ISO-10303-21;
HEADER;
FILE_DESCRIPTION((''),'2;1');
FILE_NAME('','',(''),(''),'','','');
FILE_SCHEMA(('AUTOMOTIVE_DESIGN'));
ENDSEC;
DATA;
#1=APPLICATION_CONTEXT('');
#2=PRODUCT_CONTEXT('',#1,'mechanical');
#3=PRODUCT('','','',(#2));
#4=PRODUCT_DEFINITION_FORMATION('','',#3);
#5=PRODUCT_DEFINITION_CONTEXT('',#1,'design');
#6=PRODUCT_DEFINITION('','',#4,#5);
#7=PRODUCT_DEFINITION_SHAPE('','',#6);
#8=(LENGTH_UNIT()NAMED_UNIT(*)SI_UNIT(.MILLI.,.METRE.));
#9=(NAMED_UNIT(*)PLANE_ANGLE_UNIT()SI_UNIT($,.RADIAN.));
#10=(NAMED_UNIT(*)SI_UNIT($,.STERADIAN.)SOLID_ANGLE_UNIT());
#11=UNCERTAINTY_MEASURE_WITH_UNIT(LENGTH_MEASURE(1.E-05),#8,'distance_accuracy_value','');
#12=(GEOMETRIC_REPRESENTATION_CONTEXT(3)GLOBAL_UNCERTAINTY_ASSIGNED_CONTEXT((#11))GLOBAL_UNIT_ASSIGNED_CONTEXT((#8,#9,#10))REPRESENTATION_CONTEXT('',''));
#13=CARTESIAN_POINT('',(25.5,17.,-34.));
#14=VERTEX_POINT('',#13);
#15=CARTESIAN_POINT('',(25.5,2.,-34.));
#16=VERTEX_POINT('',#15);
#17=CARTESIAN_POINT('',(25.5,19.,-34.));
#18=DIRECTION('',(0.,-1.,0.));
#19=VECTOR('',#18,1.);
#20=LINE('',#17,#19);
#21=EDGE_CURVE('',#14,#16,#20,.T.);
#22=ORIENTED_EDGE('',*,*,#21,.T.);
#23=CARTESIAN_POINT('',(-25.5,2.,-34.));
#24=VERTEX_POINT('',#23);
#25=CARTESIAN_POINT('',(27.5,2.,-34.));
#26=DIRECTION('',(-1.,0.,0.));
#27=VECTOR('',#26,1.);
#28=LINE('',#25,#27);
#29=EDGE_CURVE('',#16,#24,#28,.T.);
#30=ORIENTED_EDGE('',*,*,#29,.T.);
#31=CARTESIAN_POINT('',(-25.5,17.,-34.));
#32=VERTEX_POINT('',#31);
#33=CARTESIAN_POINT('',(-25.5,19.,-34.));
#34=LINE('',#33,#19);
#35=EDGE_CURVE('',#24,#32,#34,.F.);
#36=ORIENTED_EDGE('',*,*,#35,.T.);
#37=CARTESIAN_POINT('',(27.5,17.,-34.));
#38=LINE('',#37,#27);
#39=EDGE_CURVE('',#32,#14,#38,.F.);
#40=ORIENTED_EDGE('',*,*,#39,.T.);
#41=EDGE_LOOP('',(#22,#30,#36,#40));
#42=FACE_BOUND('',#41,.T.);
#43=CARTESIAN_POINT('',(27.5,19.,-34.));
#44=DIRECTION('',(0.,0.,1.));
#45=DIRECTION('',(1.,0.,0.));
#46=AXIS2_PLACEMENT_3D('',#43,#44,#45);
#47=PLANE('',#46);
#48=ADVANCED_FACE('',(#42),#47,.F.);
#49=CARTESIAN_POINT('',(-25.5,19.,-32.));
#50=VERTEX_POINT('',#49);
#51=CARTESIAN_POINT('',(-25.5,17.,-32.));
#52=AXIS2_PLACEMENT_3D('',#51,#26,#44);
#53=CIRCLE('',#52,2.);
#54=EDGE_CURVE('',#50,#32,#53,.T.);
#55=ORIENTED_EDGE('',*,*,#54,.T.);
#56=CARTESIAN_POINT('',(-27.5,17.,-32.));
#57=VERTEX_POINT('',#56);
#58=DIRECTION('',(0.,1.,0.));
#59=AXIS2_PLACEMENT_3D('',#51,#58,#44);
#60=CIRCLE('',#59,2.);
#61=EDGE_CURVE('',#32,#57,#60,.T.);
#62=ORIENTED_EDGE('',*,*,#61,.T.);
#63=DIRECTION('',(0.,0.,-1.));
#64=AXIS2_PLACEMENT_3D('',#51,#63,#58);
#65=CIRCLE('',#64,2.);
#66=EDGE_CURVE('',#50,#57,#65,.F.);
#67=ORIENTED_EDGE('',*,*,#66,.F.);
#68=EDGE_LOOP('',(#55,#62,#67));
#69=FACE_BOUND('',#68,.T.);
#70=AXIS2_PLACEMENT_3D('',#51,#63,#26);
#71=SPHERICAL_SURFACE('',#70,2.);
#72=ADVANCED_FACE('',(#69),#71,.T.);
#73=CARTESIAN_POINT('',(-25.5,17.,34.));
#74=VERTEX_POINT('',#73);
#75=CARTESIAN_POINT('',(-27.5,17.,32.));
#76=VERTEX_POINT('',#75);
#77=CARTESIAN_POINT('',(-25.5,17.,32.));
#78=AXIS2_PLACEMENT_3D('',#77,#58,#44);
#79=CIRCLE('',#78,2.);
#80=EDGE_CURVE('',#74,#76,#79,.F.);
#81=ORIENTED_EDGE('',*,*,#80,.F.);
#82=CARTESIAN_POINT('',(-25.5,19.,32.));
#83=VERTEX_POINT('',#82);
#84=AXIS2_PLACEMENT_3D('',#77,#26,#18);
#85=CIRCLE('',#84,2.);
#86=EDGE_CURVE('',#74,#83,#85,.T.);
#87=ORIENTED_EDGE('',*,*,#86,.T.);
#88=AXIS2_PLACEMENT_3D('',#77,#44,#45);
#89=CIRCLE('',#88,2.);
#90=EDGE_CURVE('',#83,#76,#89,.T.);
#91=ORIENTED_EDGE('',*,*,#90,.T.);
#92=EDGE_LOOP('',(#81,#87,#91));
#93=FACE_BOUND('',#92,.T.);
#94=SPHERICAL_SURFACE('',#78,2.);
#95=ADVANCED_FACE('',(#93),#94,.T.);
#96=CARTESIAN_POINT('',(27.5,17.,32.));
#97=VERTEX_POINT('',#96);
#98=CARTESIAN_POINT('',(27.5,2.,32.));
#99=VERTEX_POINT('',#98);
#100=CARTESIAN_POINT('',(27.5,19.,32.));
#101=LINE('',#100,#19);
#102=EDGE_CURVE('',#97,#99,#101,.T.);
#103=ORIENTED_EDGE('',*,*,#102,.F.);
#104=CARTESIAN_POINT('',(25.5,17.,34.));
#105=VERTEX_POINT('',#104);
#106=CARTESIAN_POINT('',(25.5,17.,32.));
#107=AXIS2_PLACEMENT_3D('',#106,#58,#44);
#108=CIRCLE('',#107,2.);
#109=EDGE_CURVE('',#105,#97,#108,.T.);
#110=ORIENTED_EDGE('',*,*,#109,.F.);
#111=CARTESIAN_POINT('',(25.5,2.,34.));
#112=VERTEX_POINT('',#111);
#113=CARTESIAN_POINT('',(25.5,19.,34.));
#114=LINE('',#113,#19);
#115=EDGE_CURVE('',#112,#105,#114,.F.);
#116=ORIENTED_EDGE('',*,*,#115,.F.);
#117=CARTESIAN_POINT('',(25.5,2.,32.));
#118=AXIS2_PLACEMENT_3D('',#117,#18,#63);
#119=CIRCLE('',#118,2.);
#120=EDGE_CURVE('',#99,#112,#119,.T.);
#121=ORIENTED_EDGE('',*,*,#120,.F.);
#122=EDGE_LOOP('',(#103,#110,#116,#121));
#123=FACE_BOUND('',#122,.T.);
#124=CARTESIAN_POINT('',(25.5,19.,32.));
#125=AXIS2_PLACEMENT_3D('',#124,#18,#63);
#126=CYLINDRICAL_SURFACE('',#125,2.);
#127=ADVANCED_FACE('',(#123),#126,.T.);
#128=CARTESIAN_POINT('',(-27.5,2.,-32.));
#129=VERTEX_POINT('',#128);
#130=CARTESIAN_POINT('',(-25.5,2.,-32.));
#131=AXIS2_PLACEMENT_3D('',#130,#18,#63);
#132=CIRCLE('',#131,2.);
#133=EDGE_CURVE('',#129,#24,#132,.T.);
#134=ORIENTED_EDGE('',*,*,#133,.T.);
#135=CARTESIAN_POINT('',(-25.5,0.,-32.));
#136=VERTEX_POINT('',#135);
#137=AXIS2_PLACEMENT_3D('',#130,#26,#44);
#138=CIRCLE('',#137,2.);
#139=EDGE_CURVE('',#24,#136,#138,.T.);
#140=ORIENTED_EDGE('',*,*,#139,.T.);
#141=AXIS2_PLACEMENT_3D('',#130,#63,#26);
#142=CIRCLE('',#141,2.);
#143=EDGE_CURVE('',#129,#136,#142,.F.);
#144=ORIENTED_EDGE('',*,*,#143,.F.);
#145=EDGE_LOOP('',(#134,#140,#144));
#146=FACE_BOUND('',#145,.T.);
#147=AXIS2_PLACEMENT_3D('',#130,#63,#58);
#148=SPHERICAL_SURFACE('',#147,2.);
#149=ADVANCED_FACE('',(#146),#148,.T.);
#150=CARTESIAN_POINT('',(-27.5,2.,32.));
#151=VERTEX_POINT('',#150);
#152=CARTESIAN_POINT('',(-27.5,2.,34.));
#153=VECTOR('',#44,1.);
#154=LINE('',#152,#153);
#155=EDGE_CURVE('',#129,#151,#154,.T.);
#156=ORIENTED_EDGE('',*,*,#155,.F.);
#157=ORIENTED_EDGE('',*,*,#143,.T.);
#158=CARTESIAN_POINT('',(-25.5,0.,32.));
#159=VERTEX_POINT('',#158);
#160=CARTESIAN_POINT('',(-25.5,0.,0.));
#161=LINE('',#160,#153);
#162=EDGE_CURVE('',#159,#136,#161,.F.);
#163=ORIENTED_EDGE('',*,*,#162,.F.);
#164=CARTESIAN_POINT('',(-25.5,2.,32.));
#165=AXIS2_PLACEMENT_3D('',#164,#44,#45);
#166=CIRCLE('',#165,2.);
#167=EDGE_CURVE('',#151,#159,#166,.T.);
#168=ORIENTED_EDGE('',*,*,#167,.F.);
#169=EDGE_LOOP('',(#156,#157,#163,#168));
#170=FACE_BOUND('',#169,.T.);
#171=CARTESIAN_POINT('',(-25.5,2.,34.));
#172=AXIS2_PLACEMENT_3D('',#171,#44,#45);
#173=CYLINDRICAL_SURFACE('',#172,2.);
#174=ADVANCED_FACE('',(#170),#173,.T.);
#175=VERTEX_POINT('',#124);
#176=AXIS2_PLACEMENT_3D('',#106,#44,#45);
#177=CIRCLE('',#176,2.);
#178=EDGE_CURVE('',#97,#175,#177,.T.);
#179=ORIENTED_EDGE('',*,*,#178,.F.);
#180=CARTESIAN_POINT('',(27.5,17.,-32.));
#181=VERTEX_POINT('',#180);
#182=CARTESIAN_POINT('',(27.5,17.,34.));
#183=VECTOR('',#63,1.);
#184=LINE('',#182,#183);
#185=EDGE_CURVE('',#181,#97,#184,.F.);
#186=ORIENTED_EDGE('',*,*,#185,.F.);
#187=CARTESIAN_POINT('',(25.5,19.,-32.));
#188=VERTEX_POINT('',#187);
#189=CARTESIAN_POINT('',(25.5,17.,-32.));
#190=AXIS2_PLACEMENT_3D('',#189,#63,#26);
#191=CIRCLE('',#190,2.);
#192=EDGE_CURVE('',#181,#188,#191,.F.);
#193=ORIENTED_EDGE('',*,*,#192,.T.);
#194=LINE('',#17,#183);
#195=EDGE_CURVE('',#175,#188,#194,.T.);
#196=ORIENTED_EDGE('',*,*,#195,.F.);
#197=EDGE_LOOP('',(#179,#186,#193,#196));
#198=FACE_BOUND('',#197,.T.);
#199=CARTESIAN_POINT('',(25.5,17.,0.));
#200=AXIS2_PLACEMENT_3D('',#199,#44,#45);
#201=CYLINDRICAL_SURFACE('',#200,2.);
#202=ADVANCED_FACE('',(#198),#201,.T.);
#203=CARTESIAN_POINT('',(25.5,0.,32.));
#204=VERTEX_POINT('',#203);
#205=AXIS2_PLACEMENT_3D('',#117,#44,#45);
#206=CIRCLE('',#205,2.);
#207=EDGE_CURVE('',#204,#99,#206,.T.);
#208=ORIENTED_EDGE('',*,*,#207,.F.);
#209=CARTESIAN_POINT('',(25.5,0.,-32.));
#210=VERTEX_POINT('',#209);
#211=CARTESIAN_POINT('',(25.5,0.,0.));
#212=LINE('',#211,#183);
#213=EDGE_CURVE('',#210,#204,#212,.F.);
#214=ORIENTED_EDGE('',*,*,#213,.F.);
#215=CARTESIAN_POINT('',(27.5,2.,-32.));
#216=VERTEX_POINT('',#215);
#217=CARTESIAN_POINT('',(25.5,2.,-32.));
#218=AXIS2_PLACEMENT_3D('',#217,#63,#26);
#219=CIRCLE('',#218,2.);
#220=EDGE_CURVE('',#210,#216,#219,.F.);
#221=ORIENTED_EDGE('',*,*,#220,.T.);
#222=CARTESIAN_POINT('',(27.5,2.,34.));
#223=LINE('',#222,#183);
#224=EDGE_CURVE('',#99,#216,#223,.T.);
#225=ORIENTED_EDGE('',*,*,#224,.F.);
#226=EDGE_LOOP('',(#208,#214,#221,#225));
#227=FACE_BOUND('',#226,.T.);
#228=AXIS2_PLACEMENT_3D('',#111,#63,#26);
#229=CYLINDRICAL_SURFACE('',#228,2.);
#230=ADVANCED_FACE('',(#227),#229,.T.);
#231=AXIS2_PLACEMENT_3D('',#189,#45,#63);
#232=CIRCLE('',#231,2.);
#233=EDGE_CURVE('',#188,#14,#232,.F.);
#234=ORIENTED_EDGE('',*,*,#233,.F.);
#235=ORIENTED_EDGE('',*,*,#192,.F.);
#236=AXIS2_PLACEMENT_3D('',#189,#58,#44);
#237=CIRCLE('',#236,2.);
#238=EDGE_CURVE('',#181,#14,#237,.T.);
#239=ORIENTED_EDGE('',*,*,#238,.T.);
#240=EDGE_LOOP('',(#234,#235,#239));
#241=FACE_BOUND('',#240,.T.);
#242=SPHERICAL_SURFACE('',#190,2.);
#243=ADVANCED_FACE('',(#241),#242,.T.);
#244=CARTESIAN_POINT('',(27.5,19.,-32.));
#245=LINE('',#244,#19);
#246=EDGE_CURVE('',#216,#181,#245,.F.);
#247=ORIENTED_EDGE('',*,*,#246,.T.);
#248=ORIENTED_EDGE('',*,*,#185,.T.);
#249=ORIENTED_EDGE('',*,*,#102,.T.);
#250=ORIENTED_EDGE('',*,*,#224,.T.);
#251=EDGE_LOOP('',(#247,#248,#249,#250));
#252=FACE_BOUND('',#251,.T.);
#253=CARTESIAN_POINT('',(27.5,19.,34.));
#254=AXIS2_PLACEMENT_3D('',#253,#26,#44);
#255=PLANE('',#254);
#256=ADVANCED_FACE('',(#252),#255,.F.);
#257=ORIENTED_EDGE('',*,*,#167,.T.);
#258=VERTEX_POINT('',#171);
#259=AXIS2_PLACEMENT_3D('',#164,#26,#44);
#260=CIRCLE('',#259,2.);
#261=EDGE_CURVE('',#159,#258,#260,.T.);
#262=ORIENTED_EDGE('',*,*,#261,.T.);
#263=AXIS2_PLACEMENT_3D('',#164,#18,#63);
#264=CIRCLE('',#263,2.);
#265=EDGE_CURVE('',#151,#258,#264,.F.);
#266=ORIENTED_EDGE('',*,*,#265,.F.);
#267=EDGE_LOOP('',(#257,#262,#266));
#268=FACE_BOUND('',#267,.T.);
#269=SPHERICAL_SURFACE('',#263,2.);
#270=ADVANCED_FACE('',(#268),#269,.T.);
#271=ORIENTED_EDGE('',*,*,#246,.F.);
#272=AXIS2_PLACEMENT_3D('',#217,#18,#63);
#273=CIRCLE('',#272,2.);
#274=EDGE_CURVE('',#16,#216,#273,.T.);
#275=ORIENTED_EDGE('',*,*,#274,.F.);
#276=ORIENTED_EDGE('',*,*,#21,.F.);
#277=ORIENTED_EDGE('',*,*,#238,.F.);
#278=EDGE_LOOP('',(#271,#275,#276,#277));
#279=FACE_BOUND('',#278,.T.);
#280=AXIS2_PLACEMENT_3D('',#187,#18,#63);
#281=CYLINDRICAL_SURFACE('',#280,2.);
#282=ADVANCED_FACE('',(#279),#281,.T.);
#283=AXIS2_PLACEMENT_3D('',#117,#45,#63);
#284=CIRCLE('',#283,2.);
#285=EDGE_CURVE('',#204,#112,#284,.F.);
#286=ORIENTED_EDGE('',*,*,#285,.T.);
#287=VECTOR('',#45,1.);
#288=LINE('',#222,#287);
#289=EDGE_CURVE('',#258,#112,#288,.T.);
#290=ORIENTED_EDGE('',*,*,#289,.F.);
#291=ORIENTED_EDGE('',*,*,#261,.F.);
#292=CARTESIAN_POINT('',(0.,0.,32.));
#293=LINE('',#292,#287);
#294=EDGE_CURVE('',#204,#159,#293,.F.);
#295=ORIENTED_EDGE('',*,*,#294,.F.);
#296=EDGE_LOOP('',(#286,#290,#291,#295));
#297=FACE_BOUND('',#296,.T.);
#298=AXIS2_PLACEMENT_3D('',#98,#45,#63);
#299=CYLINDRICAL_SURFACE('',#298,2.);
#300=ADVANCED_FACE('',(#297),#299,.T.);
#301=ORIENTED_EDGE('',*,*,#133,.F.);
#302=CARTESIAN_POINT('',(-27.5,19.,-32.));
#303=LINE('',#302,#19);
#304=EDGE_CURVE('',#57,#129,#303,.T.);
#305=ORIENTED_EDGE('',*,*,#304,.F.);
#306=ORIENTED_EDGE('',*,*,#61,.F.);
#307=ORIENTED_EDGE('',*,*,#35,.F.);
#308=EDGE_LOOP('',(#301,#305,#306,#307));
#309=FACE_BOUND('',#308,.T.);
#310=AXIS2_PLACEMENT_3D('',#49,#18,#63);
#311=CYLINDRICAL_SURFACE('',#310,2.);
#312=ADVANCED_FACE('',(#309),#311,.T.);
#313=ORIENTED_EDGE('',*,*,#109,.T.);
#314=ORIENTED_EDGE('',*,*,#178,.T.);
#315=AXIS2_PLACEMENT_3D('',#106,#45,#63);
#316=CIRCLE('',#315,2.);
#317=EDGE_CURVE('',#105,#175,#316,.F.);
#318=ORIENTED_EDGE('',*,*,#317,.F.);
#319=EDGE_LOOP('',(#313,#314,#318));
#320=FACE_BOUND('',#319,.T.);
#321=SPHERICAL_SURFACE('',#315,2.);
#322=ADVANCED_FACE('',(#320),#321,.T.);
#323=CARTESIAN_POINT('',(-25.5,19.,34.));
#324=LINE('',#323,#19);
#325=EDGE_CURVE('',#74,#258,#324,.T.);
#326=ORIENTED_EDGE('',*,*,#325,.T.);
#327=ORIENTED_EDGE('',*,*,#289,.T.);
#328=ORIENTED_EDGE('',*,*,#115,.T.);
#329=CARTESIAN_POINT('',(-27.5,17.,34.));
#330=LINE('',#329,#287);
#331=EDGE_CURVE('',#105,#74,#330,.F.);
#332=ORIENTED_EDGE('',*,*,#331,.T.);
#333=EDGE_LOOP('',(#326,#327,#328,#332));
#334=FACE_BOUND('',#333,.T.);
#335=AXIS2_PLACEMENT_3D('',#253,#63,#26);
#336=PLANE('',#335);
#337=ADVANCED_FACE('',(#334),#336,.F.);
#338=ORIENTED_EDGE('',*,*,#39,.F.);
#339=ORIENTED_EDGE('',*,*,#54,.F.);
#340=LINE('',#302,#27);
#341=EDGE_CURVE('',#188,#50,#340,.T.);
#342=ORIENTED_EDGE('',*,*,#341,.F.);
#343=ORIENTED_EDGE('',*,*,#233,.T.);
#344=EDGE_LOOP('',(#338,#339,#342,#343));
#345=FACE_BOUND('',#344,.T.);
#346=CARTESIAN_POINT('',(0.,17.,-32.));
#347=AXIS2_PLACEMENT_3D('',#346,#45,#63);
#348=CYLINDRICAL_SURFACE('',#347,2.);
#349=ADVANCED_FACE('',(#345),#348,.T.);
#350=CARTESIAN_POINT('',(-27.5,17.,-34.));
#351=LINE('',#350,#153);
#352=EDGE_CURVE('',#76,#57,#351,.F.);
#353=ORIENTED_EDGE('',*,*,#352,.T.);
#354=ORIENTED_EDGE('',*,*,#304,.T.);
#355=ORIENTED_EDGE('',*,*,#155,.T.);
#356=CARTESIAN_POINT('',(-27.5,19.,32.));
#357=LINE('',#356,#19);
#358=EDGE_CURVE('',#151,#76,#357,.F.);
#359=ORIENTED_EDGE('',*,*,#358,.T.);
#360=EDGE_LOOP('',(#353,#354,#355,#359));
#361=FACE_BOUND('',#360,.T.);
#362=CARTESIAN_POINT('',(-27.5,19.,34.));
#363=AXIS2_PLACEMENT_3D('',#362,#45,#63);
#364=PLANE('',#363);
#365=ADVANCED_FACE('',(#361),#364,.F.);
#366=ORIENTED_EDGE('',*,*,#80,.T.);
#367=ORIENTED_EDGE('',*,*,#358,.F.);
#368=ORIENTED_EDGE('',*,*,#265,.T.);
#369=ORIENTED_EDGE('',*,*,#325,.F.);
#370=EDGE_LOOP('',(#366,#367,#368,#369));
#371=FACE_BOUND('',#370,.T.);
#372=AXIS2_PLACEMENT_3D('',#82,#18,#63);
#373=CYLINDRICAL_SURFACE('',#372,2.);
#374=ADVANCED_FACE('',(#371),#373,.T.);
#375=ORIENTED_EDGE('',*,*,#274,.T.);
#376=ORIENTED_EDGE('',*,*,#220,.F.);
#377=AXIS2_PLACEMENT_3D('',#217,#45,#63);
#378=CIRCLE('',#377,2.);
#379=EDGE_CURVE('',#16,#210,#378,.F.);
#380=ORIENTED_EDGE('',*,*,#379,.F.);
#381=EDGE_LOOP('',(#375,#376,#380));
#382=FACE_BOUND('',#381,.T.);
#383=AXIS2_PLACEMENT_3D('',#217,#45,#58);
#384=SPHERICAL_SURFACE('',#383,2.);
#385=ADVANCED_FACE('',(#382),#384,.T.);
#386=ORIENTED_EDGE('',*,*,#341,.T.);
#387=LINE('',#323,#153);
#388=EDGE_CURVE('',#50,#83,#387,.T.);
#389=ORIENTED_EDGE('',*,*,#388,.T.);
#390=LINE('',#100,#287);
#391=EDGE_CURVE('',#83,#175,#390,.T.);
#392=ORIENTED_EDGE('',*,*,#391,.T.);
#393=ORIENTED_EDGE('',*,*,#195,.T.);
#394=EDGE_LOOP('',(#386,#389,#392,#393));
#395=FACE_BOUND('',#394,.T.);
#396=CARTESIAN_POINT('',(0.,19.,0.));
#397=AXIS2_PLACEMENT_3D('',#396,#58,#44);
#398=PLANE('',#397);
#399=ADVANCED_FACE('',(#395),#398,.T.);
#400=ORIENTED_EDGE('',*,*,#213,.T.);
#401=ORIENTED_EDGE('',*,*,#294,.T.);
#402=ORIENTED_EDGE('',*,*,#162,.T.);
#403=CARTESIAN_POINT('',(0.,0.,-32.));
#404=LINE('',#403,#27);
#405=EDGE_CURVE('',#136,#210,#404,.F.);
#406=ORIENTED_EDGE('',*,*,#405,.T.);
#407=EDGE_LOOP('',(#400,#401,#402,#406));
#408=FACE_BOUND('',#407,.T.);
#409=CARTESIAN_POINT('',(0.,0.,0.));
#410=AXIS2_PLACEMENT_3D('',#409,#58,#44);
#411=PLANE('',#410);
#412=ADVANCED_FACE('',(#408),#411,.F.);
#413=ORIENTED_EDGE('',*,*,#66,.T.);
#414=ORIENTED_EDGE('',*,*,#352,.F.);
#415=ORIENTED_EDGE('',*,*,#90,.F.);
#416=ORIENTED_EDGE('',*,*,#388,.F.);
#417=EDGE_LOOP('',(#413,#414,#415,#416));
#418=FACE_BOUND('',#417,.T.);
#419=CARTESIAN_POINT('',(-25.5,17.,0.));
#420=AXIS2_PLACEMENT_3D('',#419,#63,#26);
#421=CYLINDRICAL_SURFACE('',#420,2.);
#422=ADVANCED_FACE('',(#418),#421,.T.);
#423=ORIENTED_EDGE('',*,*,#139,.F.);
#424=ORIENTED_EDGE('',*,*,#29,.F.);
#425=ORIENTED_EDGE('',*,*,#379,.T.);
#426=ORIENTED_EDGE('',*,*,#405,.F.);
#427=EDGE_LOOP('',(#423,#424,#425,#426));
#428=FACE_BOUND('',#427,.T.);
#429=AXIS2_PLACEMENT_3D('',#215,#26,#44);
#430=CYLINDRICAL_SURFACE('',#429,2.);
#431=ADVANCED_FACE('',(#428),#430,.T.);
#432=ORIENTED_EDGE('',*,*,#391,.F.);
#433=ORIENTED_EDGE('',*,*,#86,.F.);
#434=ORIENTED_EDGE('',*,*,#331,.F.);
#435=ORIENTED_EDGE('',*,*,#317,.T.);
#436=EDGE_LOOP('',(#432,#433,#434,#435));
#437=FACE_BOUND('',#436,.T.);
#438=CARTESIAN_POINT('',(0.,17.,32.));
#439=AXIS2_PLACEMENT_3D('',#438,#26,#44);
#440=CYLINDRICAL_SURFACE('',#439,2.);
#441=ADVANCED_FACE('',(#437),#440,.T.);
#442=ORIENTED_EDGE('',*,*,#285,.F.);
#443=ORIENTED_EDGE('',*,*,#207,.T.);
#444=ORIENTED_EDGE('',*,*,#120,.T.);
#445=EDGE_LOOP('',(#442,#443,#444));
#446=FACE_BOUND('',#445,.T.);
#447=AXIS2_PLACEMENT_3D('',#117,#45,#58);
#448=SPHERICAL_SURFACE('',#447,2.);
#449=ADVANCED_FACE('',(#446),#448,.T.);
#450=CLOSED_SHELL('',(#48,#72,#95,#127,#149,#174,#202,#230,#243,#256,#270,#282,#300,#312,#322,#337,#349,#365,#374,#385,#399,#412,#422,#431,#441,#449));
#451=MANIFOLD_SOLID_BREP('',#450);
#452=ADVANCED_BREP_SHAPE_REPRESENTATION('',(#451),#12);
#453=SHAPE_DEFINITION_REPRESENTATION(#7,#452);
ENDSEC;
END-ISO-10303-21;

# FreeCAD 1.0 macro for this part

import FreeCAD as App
import Part
import Sketcher
Q = App.Units.Quantity


def add_polygon(sketch, points):
    """Adds a closed chain of lines whose ends are joined by coincident constraints."""
    first, n = sketch.GeometryCount, len(points)
    for a, b in zip(points, points[1:] + points[:1]):
        sketch.addGeometry(Part.LineSegment(App.Vector(*a, 0), App.Vector(*b, 0)), False)
    for i in range(n):
        sketch.addConstraint(Sketcher.Constraint("Coincident", first + i, 2, first + (i + 1) % n, 1))

doc = App.newDocument("Part")
body = doc.addObject("PartDesign::Body", "Body")

# Sketch on XZ plane
sketch1 = doc.addObject("Sketcher::SketchObject", "Sketch")
body.addObject(sketch1)
sketch1.AttachmentSupport = (doc.XZ_Plane, [""])
sketch1.MapMode = "FlatFace"
add_polygon(sketch1, [(-28, -34), (-28, 34), (28, 34), (28, -34)])  # lines 0-3
sketch1.addConstraint(Sketcher.Constraint("Vertical", 0))
sketch1.addConstraint(Sketcher.Constraint("Horizontal", 1))
sketch1.addConstraint(Sketcher.Constraint("Vertical", 2))
sketch1.addConstraint(Sketcher.Constraint("Horizontal", 3))
sketch1.addConstraint(Sketcher.Constraint("Symmetric", 0, 2, 2, 2, -1, 1))
sketch1.addConstraint(Sketcher.Constraint("DistanceX", 1, 1, 1, 2, Q("55 mm")))
sketch1.addConstraint(Sketcher.Constraint("DistanceY", 0, 1, 0, 2, Q("68 mm")))
pad1 = doc.addObject("PartDesign::Pad", "Pad")
body.addObject(pad1)
pad1.Profile = sketch1
pad1.Length = 19
pad1.Reversed = True
doc.recompute()

fillet = doc.addObject("PartDesign::Fillet", "Fillet")
body.addObject(fillet)
fillet.Base = (pad1, ["Edge1"])
fillet.UseAllEdges = True
fillet.Radius = 2

doc.recompute()
